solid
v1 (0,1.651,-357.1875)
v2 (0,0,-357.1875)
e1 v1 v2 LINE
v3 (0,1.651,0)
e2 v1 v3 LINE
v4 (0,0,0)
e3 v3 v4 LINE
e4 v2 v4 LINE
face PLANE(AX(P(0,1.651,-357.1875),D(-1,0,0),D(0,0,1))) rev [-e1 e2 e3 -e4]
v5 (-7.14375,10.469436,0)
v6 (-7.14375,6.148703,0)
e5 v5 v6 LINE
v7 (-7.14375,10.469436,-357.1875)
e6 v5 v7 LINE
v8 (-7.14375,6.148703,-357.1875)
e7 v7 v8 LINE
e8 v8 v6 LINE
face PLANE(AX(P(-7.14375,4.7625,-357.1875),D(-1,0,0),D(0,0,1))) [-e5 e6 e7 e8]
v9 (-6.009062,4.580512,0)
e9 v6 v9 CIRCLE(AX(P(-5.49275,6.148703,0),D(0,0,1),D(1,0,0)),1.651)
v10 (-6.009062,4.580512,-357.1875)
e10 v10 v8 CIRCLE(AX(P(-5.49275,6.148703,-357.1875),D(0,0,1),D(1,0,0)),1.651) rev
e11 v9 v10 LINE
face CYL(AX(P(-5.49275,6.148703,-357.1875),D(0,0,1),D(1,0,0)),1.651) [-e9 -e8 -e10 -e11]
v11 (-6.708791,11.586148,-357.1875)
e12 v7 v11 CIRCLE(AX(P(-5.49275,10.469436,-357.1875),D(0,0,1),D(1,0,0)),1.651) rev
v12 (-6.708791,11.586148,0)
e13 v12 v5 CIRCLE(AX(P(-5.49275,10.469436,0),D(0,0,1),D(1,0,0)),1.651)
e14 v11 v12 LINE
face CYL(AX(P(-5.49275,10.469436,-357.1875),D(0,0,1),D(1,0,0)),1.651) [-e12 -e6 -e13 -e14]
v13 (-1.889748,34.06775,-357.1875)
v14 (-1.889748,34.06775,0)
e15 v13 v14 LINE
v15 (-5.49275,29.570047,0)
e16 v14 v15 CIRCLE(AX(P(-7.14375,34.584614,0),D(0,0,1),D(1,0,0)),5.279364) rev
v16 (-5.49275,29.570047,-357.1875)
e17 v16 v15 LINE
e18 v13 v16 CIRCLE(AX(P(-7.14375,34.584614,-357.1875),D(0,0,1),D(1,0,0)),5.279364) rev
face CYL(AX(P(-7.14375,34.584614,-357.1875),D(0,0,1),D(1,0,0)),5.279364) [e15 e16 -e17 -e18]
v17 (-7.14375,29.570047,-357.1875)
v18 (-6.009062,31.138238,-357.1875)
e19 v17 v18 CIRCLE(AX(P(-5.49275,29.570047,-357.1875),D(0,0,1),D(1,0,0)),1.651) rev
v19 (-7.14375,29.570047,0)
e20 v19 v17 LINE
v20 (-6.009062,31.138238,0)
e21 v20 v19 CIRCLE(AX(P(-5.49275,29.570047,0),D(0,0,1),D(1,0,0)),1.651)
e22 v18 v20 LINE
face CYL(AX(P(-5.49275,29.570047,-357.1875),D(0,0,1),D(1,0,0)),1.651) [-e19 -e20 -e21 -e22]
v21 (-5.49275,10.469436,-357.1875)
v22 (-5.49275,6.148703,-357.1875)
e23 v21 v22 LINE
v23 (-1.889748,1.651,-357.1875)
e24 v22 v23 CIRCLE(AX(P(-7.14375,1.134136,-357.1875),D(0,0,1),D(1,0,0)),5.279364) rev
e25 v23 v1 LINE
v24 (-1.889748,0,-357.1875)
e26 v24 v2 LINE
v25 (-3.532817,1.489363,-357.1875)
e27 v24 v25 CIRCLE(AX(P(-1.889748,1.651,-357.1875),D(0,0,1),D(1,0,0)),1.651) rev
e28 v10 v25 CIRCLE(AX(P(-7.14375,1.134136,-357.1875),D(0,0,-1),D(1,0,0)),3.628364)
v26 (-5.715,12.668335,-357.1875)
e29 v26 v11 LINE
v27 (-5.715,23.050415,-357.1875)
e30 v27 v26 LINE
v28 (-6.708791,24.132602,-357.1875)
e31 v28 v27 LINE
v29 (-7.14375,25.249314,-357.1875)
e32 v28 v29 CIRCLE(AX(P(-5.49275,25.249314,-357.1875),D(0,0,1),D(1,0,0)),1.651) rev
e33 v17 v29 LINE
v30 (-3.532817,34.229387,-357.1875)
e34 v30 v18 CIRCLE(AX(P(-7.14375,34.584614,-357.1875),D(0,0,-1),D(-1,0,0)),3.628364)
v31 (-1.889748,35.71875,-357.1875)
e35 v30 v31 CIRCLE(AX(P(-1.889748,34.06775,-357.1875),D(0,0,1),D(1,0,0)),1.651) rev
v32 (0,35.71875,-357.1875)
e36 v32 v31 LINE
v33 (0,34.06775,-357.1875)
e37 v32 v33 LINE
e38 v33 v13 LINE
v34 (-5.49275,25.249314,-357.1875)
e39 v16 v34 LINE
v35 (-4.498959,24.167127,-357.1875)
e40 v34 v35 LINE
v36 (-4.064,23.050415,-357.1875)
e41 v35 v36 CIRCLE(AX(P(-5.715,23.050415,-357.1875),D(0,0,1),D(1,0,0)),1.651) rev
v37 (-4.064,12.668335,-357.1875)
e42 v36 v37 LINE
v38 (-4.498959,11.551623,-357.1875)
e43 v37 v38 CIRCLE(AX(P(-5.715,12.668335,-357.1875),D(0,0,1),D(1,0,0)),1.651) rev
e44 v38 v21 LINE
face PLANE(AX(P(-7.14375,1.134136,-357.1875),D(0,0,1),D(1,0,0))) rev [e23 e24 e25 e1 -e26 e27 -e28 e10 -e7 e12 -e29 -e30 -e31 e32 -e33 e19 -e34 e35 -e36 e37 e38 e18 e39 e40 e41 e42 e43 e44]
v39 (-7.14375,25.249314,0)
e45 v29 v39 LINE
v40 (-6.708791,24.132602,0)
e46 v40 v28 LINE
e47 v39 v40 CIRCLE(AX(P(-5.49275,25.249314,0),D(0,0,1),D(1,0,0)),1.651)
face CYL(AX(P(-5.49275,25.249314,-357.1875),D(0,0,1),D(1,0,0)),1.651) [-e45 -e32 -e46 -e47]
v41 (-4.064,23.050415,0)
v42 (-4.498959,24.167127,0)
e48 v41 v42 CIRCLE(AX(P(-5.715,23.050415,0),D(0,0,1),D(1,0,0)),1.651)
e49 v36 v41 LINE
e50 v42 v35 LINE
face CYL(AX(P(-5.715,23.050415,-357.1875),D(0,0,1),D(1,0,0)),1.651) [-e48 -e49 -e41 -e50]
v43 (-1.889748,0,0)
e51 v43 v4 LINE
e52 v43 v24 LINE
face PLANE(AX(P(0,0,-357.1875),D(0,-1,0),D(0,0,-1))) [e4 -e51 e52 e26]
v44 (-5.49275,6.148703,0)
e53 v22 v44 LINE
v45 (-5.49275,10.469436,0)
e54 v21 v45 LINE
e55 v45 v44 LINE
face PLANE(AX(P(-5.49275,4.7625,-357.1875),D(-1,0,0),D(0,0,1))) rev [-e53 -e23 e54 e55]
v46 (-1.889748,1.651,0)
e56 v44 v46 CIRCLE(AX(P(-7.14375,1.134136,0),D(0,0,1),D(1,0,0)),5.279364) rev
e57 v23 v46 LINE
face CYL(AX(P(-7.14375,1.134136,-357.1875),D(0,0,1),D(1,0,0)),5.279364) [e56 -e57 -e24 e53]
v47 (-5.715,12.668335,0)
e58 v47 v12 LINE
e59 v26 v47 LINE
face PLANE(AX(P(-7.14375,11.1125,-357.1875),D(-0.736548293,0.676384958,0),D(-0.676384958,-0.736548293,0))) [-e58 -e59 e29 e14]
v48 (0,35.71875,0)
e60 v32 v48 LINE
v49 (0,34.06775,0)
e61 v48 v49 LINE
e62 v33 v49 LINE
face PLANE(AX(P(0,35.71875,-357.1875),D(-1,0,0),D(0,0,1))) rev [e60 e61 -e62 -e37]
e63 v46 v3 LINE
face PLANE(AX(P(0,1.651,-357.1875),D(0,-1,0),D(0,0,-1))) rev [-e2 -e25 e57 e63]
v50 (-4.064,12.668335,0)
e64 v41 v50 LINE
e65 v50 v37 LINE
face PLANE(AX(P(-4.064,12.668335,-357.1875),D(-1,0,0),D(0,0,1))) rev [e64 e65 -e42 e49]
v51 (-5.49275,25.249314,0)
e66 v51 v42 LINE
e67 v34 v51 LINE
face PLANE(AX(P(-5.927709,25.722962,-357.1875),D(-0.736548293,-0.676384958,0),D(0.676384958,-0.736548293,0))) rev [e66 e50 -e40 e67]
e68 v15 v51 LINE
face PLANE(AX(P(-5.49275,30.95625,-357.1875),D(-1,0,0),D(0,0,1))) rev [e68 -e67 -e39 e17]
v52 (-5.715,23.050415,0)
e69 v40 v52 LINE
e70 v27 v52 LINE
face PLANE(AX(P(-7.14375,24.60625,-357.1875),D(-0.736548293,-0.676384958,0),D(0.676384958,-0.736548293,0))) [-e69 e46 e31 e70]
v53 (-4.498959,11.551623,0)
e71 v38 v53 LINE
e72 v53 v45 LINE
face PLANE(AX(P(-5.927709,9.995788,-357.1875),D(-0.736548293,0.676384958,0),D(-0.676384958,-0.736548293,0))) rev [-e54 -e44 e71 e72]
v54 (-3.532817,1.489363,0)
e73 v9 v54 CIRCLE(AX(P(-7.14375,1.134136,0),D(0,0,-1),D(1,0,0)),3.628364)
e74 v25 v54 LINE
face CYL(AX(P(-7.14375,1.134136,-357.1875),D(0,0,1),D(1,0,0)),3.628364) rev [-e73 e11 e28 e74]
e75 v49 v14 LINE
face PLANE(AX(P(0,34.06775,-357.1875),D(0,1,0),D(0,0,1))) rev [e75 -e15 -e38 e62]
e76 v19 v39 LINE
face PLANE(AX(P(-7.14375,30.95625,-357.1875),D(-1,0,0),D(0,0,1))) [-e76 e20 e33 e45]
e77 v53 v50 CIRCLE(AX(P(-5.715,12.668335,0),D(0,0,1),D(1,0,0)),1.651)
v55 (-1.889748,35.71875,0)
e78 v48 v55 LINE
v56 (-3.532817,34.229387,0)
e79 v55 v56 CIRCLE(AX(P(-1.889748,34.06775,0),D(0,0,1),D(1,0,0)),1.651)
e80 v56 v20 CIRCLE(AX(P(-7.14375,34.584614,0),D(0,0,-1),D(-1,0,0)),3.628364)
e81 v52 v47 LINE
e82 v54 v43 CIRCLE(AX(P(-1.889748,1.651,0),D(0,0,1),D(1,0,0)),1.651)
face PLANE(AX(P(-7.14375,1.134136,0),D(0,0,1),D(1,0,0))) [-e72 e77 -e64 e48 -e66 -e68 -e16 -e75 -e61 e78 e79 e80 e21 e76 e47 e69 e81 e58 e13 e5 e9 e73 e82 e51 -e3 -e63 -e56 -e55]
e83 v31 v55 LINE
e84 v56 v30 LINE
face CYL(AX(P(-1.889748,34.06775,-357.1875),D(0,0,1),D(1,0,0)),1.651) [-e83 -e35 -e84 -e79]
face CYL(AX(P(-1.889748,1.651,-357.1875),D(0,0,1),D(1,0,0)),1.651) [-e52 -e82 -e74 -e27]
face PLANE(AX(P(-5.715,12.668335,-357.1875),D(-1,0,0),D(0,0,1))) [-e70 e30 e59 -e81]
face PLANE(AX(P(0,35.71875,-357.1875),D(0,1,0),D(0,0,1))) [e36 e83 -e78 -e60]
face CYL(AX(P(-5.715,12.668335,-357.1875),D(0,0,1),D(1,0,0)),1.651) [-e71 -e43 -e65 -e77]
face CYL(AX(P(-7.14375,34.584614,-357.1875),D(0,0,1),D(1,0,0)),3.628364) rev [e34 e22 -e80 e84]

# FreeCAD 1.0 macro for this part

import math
import FreeCAD as App
import Part
import Sketcher
from FreeCAD import Vector
Q = App.Units.Quantity


def edges_at(feature, points):
    """Names of the edges that pass closest to the given points."""
    edges = feature.Shape.Edges
    near = lambda p: min(range(len(edges)), key=lambda i: edges[i].distToShape(Part.Vertex(*p))[0])
    return sorted({f"Edge{near(p) + 1}" for p in points})

doc = App.newDocument("Part")
params = doc.addObject("Spreadsheet::Sheet", "Params")
for row, (alias, value) in enumerate([
    ("sketch1_height", "0.25 in"),
    ("sketch1_height2", "0.065 in"),
    ("pad1_length", "14.0625 in"),
    ("fillet_radius", "0.065 in"),
], start=1):
    params.set(f"A{row}", alias)
    params.set(f"B{row}", "=" + value)
    params.setAlias(f"B{row}", alias)

body = doc.addObject("PartDesign::Body", "Body")

# Sketch on XY plane
sketch1 = doc.addObject("Sketcher::SketchObject", "Sketch")
body.addObject(sketch1)
sketch1.AttachmentSupport = (doc.XY_Plane, [""])
sketch1.MapMode = "FlatFace"
sketch1.addGeometry([
    Part.LineSegment(Vector(-3.7, 0, 0), Vector(0, 0, 0)),  # 0
    Part.LineSegment(Vector(0, 0, 0), Vector(0, 1.7, 0)),  # 1
    Part.LineSegment(Vector(0, 1.7, 0), Vector(-1.9, 1.7, 0)),  # 2
    Part.ArcOfCircle(Part.Circle(Vector(-7.1, 1.1, 0), Vector(0, 0, 1), 5.3), math.radians(6), math.radians(72)),  # 3
    Part.LineSegment(Vector(-5.5, 6.1, 0), Vector(-5.5, 10.5, 0)),  # 4
    Part.LineSegment(Vector(-5.5, 10.5, 0), Vector(-4.1, 12, 0)),  # 5
    Part.LineSegment(Vector(-4.1, 12, 0), Vector(-4.1, 23.7, 0)),  # 6
    Part.LineSegment(Vector(-4.1, 23.7, 0), Vector(-5.5, 25.2, 0)),  # 7
    Part.LineSegment(Vector(-5.5, 25.2, 0), Vector(-5.5, 29.6, 0)),  # 8
    Part.ArcOfCircle(Part.Circle(Vector(-7.1, 34.6, 0), Vector(0, 0, 1), 5.3), math.radians(-72), math.radians(-6)),  # 9
    Part.LineSegment(Vector(-1.9, 34.1, 0), Vector(0, 34.1, 0)),  # 10
    Part.LineSegment(Vector(0, 34.1, 0), Vector(0, 35.7, 0)),  # 11
    Part.LineSegment(Vector(0, 35.7, 0), Vector(-3.7, 35.7, 0)),  # 12
    Part.ArcOfCircle(Part.Circle(Vector(-7.1, 34.6, 0), Vector(0, 0, 1), 3.6), math.radians(-90), math.radians(18)),  # 13
    Part.LineSegment(Vector(-7.1, 31, 0), Vector(-7.1, 24.6, 0)),  # 14
    Part.LineSegment(Vector(-7.1, 24.6, 0), Vector(-5.7, 23.1, 0)),  # 15
    Part.LineSegment(Vector(-5.7, 23.1, 0), Vector(-5.7, 12.7, 0)),  # 16
    Part.LineSegment(Vector(-5.7, 12.7, 0), Vector(-7.1, 11.1, 0)),  # 17
    Part.LineSegment(Vector(-7.1, 11.1, 0), Vector(-7.1, 4.8, 0)),  # 18
    Part.ArcOfCircle(Part.Circle(Vector(-7.1, 1.1, 0), Vector(0, 0, 1), 3.6), math.radians(-18), math.radians(90)),  # 19
], False)
sketch1.addConstraint([
    Sketcher.Constraint("Coincident", 0, 2, 1, 1),
    Sketcher.Constraint("Coincident", 1, 2, 2, 1),
    Sketcher.Constraint("Coincident", 2, 2, 3, 1),
    Sketcher.Constraint("Coincident", 3, 2, 4, 1),
    Sketcher.Constraint("Coincident", 4, 2, 5, 1),
    Sketcher.Constraint("Coincident", 5, 2, 6, 1),
    Sketcher.Constraint("Coincident", 6, 2, 7, 1),
    Sketcher.Constraint("Coincident", 7, 2, 8, 1),
    Sketcher.Constraint("Coincident", 8, 2, 9, 1),
    Sketcher.Constraint("Coincident", 9, 2, 10, 1),
    Sketcher.Constraint("Coincident", 10, 2, 11, 1),
    Sketcher.Constraint("Coincident", 11, 2, 12, 1),
    Sketcher.Constraint("Coincident", 12, 2, 13, 2),
    Sketcher.Constraint("Coincident", 13, 1, 14, 1),
    Sketcher.Constraint("Coincident", 14, 2, 15, 1),
    Sketcher.Constraint("Coincident", 15, 2, 16, 1),
    Sketcher.Constraint("Coincident", 16, 2, 17, 1),
    Sketcher.Constraint("Coincident", 17, 2, 18, 1),
    Sketcher.Constraint("Coincident", 18, 2, 19, 2),
    Sketcher.Constraint("Coincident", 19, 1, 0, 1),
    Sketcher.Constraint("Horizontal", 0),
    Sketcher.Constraint("Vertical", 1),
    Sketcher.Constraint("Horizontal", 2),
    Sketcher.Constraint("Vertical", 4),
    Sketcher.Constraint("Vertical", 6),
    Sketcher.Constraint("Vertical", 8),
    Sketcher.Constraint("Horizontal", 10),
    Sketcher.Constraint("Vertical", 11),
    Sketcher.Constraint("Horizontal", 12),
    Sketcher.Constraint("Vertical", 14),
    Sketcher.Constraint("Vertical", 16),
    Sketcher.Constraint("Vertical", 18),
    Sketcher.Constraint("Coincident", 0, 2, -1, 1),
    Sketcher.Constraint("Coincident", 13, 3, 9, 3),
    Sketcher.Constraint("Coincident", 19, 3, 3, 3),
    Sketcher.Constraint("Equal", 3, 9),
    Sketcher.Constraint("Equal", 13, 19),
    Sketcher.Constraint("PointOnObject", 10, 2, -2),
    Sketcher.Constraint("Parallel", 7, 15),
    Sketcher.Constraint("Parallel", 5, 17),
    Sketcher.Constraint("Vertical", 3, 3, 9, 3),
    Sketcher.Constraint("Vertical", 4, 2, 7, 2),
    Sketcher.Constraint("Vertical", 2, 2, 9, 2),
    Sketcher.Constraint("Vertical", 19, 3, 13, 1),
    Sketcher.Constraint("Vertical", 14, 2, 17, 2),
    Sketcher.Constraint("Vertical", 12, 2, 19, 1),
    Sketcher.Constraint("Equal", 4, 8),
    Sketcher.Constraint("Equal", 14, 18),
    Sketcher.Constraint("Equal", 5, 7),
    Sketcher.Constraint("Equal", 7, 15),
    Sketcher.Constraint("DistanceY", 14, 2, 14, 1, Q("0.25 in")),
    Sketcher.Constraint("DistanceY", 1, 1, 1, 2, Q("0.065 in")),
    Sketcher.Constraint("DistanceX", 5, 2, -1, 1, Q("0.16 in")),
    Sketcher.Constraint("DistanceX", 3, 3, -1, 1, Q("0.28125 in")),
    Sketcher.Constraint("DistanceY", -1, 1, 11, 2, Q("1.40625 in")),
    Sketcher.Constraint("DistanceY", -1, 1, 13, 1, Q("1.21875 in")),
    Sketcher.Constraint("DistanceX", 15, 2, -1, 1, Q("0.225 in")),
    Sketcher.Constraint("Radius", 3, 5.279364),
    Sketcher.Constraint("Radius", 13, 3.628364),
    Sketcher.Constraint("DistanceY", 16, 2, 16, 1, 10.38208),
    Sketcher.Constraint("DistanceY", 3, 3, 4, 2, 9.3353),
])
sketch1.setExpression("Constraints[50]", "Params.sketch1_height")
sketch1.setExpression("Constraints[51]", "Params.sketch1_height2")
pad1 = doc.addObject("PartDesign::Pad", "Pad")
body.addObject(pad1)
pad1.Profile = sketch1
pad1.setExpression("Length", "Params.pad1_length")
pad1.Reversed = True
doc.recompute()

fillet = doc.addObject("PartDesign::Fillet", "Fillet")
body.addObject(fillet)
fillet.Base = (pad1, edges_at(pad1, [
    (-3.697, 0, -178.594),
    (-7.144, 4.763, -178.594),
    (-7.144, 11.113, -178.594),
    (-7.144, 24.606, -178.594),
    (-7.144, 30.956, -178.594),
    (-3.697, 35.719, -178.594),
    (-4.064, 23.693, -178.594),
    (-4.064, 12.025, -178.594),
]))
fillet.setExpression("Radius", "Params.fillet_radius")

doc.recompute()
